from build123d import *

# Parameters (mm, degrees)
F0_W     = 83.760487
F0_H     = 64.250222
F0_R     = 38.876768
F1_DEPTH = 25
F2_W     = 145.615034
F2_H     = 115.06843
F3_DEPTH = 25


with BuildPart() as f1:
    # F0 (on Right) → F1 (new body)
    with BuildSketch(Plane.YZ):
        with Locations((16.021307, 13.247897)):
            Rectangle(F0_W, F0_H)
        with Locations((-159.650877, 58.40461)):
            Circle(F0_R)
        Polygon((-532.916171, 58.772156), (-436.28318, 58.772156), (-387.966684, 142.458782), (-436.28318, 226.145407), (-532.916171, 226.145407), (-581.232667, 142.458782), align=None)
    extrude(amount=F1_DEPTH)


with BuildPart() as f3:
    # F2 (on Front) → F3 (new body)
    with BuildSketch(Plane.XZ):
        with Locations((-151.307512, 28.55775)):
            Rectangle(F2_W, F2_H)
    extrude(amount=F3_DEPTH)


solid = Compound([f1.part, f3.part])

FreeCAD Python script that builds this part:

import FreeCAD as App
import Part
import Sketcher
from FreeCAD import Vector
Q = App.Units.Quantity

doc = App.newDocument("Part")
body = doc.addObject("PartDesign::Body", "Body")
body.AllowCompound = True

# Sketch on YZ plane
sketch1 = body.newObject("Sketcher::SketchObject", "Sketch")
sketch1.AttachmentSupport = (doc.getObject("YZ_Plane"), [""])
sketch1.MapMode = "FlatFace"
sketch1.addGeometry([
    Part.LineSegment(Vector(-26, 45, 0), Vector(-26, -19, 0)),  # 0
    Part.LineSegment(Vector(-26, -19, 0), Vector(58, -19, 0)),  # 1
    Part.LineSegment(Vector(58, -19, 0), Vector(58, 45, 0)),  # 2
    Part.LineSegment(Vector(58, 45, 0), Vector(-26, 45, 0)),  # 3
    Part.Circle(Vector(-160, 58, 0), Vector(0, 0, 1), 39),  # 4
    Part.LineSegment(Vector(-533, 59, 0), Vector(-436, 59, 0)),  # 5
    Part.LineSegment(Vector(-436, 59, 0), Vector(-388, 142, 0)),  # 6
    Part.LineSegment(Vector(-388, 142, 0), Vector(-436, 226, 0)),  # 7
    Part.LineSegment(Vector(-436, 226, 0), Vector(-533, 226, 0)),  # 8
    Part.LineSegment(Vector(-533, 226, 0), Vector(-581, 142, 0)),  # 9
    Part.LineSegment(Vector(-581, 142, 0), Vector(-533, 59, 0)),  # 10
], False)
sketch1.addConstraint([
    Sketcher.Constraint("Coincident", 0, 2, 1, 1),
    Sketcher.Constraint("Coincident", 1, 2, 2, 1),
    Sketcher.Constraint("Coincident", 2, 2, 3, 1),
    Sketcher.Constraint("Coincident", 3, 2, 0, 1),
    Sketcher.Constraint("Coincident", 5, 2, 6, 1),
    Sketcher.Constraint("Coincident", 6, 2, 7, 1),
    Sketcher.Constraint("Coincident", 7, 2, 8, 1),
    Sketcher.Constraint("Coincident", 8, 2, 9, 1),
    Sketcher.Constraint("Coincident", 9, 2, 10, 1),
    Sketcher.Constraint("Coincident", 10, 2, 5, 1),
    Sketcher.Constraint("Vertical", 0),
    Sketcher.Constraint("Horizontal", 1),
    Sketcher.Constraint("Vertical", 2),
    Sketcher.Constraint("Horizontal", 3),
    Sketcher.Constraint("Horizontal", 5),
    Sketcher.Constraint("Horizontal", 8),
    Sketcher.Constraint("Parallel", 6, 9),
    Sketcher.Constraint("Parallel", 7, 10),
    Sketcher.Constraint("Horizontal", 6, 2, 9, 2),
    Sketcher.Constraint("Vertical", 5, 2, 7, 2),
    Sketcher.Constraint("Vertical", 8, 2, 10, 2),
    Sketcher.Constraint("Angle", 6, Q("60 deg")),
    Sketcher.Constraint("Diameter", 4, Q("77.753536 mm")),
    Sketcher.Constraint("DistanceX", 5, 1, 5, 2, Q("96.632991 mm")),
    Sketcher.Constraint("DistanceY", 0, 2, 0, 1, Q("64.250222 mm")),
    Sketcher.Constraint("DistanceY", 3, 2, 7, 2, Q("180.772399 mm")),
    Sketcher.Constraint("Distance", 7, Q("96.632991 mm")),
    Sketcher.Constraint("DistanceX", 1, 1, 1, 2, Q("83.760487 mm")),
    Sketcher.Constraint("DistanceY", -1, 1, 4, 3, Q("58.40461 mm")),
    Sketcher.Constraint("DistanceX", -1, 1, 1, 2, Q("57.90155 mm")),
    Sketcher.Constraint("DistanceX", 5, 2, -1, 1, Q("436.28318 mm")),
    Sketcher.Constraint("DistanceX", 4, 3, 0, 2, Q("133.791941 mm")),
    Sketcher.Constraint("DistanceY", 0, 2, -1, 1, Q("18.877214 mm")),
])
pad1 = body.newObject("PartDesign::Pad", "Pad")
pad1.Profile = sketch1
pad1.Length = 25
body2 = doc.addObject("PartDesign::Body", "Body001")

# Sketch on XZ plane
sketch2 = body2.newObject("Sketcher::SketchObject", "Sketch001")
sketch2.AttachmentSupport = (doc.getObject("XZ_Plane001"), [""])
sketch2.MapMode = "FlatFace"
sketch2.addGeometry([
    Part.LineSegment(Vector(-224, 86, 0), Vector(-224, -29, 0)),
    Part.LineSegment(Vector(-224, -29, 0), Vector(-78, -29, 0)),
    Part.LineSegment(Vector(-78, -29, 0), Vector(-78, 86, 0)),
    Part.LineSegment(Vector(-78, 86, 0), Vector(-224, 86, 0)),
], False)
sketch2.addConstraint([
    Sketcher.Constraint("Coincident", 0, 2, 1, 1),
    Sketcher.Constraint("Coincident", 1, 2, 2, 1),
    Sketcher.Constraint("Coincident", 2, 2, 3, 1),
    Sketcher.Constraint("Coincident", 3, 2, 0, 1),
    Sketcher.Constraint("Vertical", 0),
    Sketcher.Constraint("Horizontal", 1),
    Sketcher.Constraint("Vertical", 2),
    Sketcher.Constraint("Horizontal", 3),
    Sketcher.Constraint("DistanceY", 0, 2, 0, 1, Q("115.06843 mm")),
    Sketcher.Constraint("DistanceX", 1, 1, 1, 2, Q("145.615034 mm")),
    Sketcher.Constraint("DistanceX", 0, 2, -1, 1, Q("224.115029 mm")),
    Sketcher.Constraint("DistanceY", 0, 2, -1, 1, Q("28.976465 mm")),
])
pad2 = body2.newObject("PartDesign::Pad", "Pad001")
pad2.Profile = sketch2
pad2.Length = 25

doc.recompute()
